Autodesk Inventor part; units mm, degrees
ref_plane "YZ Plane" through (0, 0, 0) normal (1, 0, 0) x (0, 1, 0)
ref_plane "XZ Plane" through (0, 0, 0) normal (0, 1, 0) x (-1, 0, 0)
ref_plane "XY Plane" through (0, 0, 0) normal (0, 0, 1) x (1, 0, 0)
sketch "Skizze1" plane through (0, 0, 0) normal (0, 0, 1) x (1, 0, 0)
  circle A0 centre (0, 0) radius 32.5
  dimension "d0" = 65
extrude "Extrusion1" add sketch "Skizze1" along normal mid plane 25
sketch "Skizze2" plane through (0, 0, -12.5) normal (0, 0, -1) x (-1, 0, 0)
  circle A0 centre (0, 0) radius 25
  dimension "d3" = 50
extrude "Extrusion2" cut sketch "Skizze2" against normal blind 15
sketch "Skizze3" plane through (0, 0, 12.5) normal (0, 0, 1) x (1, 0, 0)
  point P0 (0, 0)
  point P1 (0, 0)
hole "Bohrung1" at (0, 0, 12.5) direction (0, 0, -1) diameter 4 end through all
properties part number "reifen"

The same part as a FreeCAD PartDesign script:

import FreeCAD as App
import Part
import Sketcher
from FreeCAD import Vector
Q = App.Units.Quantity

doc = App.newDocument("Part")
body = doc.addObject("PartDesign::Body", "Body")

# Sketch on XY plane
sketch1 = doc.addObject("Sketcher::SketchObject", "Sketch")
body.addObject(sketch1)
sketch1.AttachmentSupport = (doc.XY_Plane, [""])
sketch1.MapMode = "FlatFace"
sketch1.addGeometry(Part.Circle(Vector(0, 0, 0), Vector(0, 0, 1), 32), False)
sketch1.addConstraint(Sketcher.Constraint("Coincident", 0, 3, -1, 1))
sketch1.addConstraint(Sketcher.Constraint("Diameter", 0, Q("65 mm")))
pad1 = doc.addObject("PartDesign::Pad", "Pad")
body.addObject(pad1)
pad1.Profile = sketch1
pad1.Length = 25
pad1.Midplane = True

# Sketch on XY plane
sketch2 = doc.addObject("Sketcher::SketchObject", "Sketch001")
body.addObject(sketch2)
sketch2.AttachmentSupport = (doc.XY_Plane, [""])
sketch2.MapMode = "FlatFace"
sketch2.AttachmentOffset = App.Placement(Vector(0, 0, -12.5), App.Rotation())
sketch2.addGeometry(Part.Circle(Vector(0, 0, 0), Vector(0, 0, 1), 25), False)
sketch2.addConstraint(Sketcher.Constraint("Coincident", 0, 3, -1, 1))
sketch2.addConstraint(Sketcher.Constraint("Diameter", 0, Q("50 mm")))
pocket1 = doc.addObject("PartDesign::Pocket", "Pocket")
body.addObject(pocket1)
pocket1.Profile = sketch2
pocket1.Length = 15
pocket1.Reversed = True

# Sketch on XY plane
sketch3 = doc.addObject("Sketcher::SketchObject", "Sketch002")
body.addObject(sketch3)
sketch3.AttachmentSupport = (doc.XY_Plane, [""])
sketch3.MapMode = "FlatFace"
sketch3.AttachmentOffset = App.Placement(Vector(0, 0, 12.5), App.Rotation())
sketch3.addGeometry(Part.Circle(Vector(0, 0, 0), Vector(0, 0, 1), 2), False)
sketch3.addConstraint(Sketcher.Constraint("Coincident", 0, 3, -1, 1))
sketch3.addConstraint(Sketcher.Constraint("Diameter", 0, Q("4 mm")))
doc.recompute()
hole = doc.addObject("PartDesign::Hole", "Hole")
body.addObject(hole)
hole.Profile = sketch3
hole.ThreadType = "None"
hole.Diameter = 4
hole.DepthType = "ThroughAll"

doc.recompute()
